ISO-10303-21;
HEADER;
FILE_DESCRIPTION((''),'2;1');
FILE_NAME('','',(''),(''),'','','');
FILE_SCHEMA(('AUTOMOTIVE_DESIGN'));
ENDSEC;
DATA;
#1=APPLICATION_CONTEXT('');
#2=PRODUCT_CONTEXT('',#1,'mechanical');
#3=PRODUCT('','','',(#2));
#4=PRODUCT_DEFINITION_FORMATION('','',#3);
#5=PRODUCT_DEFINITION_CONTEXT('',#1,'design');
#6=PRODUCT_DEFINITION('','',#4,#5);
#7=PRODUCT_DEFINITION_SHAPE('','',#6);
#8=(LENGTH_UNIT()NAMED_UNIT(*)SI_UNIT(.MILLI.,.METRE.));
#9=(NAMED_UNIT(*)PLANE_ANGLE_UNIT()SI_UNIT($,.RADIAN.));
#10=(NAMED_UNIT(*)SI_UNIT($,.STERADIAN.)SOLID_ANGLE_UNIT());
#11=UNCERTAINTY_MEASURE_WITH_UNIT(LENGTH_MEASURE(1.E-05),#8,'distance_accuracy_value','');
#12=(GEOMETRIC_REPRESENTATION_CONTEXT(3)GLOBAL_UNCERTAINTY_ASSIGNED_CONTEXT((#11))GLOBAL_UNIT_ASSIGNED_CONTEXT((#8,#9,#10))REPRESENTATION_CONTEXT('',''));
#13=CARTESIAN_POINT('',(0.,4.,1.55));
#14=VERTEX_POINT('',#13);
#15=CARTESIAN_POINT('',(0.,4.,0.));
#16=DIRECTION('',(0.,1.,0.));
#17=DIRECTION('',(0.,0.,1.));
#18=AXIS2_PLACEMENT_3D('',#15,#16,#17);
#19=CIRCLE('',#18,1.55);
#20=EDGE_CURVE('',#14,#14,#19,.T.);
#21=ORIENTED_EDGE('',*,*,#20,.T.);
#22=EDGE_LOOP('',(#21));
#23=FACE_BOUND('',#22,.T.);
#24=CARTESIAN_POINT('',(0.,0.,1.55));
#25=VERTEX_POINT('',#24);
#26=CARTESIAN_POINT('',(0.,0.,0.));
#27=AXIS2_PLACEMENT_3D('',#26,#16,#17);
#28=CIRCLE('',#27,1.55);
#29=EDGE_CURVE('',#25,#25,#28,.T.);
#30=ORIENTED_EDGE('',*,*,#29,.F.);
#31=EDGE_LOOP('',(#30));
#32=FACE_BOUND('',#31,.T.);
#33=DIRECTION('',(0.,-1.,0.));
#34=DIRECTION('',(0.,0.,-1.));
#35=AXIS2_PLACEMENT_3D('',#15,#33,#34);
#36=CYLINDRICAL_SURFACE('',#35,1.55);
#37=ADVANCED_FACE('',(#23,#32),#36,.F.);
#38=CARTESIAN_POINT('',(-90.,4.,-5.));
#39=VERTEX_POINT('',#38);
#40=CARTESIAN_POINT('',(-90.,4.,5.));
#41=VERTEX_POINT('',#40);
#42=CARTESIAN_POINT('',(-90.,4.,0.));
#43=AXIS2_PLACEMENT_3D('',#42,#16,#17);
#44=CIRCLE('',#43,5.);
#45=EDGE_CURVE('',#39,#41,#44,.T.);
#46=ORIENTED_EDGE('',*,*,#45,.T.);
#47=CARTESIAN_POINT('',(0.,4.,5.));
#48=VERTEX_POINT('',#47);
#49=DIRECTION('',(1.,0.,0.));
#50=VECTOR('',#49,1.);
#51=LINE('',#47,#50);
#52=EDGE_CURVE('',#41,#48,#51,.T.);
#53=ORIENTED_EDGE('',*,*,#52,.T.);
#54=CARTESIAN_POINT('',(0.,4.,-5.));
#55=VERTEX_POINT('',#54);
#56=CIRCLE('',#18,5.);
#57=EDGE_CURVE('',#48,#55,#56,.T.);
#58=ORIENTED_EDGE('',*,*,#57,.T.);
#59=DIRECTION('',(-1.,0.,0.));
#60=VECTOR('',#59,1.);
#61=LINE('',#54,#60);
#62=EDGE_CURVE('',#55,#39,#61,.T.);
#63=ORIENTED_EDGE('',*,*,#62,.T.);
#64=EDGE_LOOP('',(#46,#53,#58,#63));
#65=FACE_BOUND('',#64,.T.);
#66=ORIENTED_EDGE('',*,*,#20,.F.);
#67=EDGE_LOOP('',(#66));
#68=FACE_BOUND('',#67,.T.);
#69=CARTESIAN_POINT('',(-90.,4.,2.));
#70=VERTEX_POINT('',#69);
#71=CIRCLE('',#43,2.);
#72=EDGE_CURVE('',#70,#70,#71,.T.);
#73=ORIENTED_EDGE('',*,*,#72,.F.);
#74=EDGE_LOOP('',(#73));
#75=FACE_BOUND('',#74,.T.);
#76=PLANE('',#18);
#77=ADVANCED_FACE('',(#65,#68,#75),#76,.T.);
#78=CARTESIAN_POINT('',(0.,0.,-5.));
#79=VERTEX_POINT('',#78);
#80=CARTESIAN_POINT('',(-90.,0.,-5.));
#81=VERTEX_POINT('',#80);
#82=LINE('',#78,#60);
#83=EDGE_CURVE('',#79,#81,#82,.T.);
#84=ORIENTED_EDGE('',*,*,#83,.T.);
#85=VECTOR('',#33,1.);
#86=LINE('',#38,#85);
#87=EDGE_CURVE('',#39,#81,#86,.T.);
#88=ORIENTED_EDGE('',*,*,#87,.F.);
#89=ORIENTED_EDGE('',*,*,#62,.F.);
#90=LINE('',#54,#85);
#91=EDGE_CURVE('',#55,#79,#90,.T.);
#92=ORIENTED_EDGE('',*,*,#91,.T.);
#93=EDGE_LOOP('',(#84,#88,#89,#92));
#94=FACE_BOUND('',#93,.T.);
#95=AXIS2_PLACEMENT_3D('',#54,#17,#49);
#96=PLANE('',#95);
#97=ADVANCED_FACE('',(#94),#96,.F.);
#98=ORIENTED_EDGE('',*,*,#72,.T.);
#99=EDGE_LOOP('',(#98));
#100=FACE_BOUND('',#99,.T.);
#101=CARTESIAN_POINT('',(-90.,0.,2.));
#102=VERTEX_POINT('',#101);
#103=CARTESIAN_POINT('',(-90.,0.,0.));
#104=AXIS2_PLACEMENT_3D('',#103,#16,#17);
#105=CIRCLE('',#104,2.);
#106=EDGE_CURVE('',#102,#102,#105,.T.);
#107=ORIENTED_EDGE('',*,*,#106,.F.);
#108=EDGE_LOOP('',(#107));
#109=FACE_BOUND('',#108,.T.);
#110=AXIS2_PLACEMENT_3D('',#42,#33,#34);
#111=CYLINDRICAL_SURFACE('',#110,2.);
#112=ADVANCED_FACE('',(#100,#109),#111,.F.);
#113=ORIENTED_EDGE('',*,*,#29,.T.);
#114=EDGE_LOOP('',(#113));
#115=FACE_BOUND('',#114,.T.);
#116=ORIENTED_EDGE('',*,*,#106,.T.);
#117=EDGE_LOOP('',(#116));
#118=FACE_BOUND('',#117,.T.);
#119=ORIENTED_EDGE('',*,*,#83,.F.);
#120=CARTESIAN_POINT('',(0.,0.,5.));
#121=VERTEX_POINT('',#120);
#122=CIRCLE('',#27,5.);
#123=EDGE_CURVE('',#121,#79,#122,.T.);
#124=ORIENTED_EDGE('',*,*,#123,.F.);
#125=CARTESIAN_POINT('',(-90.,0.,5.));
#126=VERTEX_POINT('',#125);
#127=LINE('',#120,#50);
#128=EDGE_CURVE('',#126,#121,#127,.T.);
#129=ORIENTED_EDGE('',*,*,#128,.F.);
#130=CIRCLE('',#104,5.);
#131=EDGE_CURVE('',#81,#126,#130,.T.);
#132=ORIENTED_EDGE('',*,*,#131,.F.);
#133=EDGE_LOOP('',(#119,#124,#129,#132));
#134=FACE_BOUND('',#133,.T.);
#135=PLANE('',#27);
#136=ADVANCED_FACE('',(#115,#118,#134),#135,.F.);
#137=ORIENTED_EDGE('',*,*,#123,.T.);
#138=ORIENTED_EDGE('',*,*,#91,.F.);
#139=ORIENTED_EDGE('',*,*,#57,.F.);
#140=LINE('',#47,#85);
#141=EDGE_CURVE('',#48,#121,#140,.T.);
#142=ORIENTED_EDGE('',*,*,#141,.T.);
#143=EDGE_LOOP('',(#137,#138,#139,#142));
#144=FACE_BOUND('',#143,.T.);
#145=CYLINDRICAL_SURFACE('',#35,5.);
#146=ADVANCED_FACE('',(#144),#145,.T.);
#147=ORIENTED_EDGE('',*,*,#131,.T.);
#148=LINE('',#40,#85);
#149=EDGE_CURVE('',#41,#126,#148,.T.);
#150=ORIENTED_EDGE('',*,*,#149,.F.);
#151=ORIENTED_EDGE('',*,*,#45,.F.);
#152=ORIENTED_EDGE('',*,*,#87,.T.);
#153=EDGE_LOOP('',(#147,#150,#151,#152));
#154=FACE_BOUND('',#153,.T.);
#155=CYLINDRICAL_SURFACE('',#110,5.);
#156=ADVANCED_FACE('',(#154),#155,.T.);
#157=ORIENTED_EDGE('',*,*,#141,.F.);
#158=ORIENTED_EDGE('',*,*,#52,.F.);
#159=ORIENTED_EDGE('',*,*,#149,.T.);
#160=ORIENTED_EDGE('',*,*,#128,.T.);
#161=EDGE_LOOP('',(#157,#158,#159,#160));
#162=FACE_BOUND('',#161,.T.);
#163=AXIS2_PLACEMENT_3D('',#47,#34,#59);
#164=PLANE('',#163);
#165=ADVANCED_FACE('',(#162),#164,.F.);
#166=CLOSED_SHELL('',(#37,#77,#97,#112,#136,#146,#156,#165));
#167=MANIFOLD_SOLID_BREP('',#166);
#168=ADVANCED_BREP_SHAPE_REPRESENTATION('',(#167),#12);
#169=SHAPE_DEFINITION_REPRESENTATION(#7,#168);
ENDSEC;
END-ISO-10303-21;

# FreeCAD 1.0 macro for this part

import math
import FreeCAD as App
import Part
import Sketcher
from FreeCAD import Vector

doc = App.newDocument("Part")
body = doc.addObject("PartDesign::Body", "Body")

# Sketch on XZ plane
sketch1 = doc.addObject("Sketcher::SketchObject", "Sketch")
body.addObject(sketch1)
sketch1.AttachmentSupport = (doc.XZ_Plane, [""])
sketch1.MapMode = "FlatFace"
sketch1.addGeometry([
    Part.LineSegment(Vector(-90, 5, 0), Vector(0, 5, 0)),  # 0
    Part.ArcOfCircle(Part.Circle(Vector(0, 0, 0), Vector(0, 0, 1), 5), math.radians(-90), math.radians(90)),  # 1
    Part.LineSegment(Vector(0, -5, 0), Vector(-90, -5, 0)),  # 2
    Part.ArcOfCircle(Part.Circle(Vector(-90, 0, 0), Vector(0, 0, 1), 5), math.radians(90), math.radians(270)),  # 3
    Part.Circle(Vector(0, 0, 0), Vector(0, 0, 1), 1.6),  # 4
    Part.Circle(Vector(-90, 0, 0), Vector(0, 0, 1), 2),  # 5
], False)
sketch1.addConstraint([
    Sketcher.Constraint("Tangent", 0, 2, 1, 2),
    Sketcher.Constraint("Tangent", 1, 1, 2, 1),
    Sketcher.Constraint("Tangent", 2, 2, 3, 2),
    Sketcher.Constraint("Tangent", 3, 1, 0, 1),
    Sketcher.Constraint("Horizontal", 0),
    Sketcher.Constraint("Horizontal", 2),
    Sketcher.Constraint("Coincident", 1, 3, -1, 1),
    Sketcher.Constraint("Coincident", 4, 3, -1, 1),
    Sketcher.Constraint("Coincident", 5, 3, 3, 3),
    Sketcher.Constraint("Diameter", 5, 4.0),
    Sketcher.Constraint("Radius", 1, 5.0),
    Sketcher.Constraint("Diameter", 4, 3.1),
    Sketcher.Constraint("DistanceX", 0, 1, 0, 2, 90.0),
])
pad1 = doc.addObject("PartDesign::Pad", "Pad")
body.addObject(pad1)
pad1.Profile = sketch1
pad1.Length = 4
pad1.Reversed = True

doc.recompute()
